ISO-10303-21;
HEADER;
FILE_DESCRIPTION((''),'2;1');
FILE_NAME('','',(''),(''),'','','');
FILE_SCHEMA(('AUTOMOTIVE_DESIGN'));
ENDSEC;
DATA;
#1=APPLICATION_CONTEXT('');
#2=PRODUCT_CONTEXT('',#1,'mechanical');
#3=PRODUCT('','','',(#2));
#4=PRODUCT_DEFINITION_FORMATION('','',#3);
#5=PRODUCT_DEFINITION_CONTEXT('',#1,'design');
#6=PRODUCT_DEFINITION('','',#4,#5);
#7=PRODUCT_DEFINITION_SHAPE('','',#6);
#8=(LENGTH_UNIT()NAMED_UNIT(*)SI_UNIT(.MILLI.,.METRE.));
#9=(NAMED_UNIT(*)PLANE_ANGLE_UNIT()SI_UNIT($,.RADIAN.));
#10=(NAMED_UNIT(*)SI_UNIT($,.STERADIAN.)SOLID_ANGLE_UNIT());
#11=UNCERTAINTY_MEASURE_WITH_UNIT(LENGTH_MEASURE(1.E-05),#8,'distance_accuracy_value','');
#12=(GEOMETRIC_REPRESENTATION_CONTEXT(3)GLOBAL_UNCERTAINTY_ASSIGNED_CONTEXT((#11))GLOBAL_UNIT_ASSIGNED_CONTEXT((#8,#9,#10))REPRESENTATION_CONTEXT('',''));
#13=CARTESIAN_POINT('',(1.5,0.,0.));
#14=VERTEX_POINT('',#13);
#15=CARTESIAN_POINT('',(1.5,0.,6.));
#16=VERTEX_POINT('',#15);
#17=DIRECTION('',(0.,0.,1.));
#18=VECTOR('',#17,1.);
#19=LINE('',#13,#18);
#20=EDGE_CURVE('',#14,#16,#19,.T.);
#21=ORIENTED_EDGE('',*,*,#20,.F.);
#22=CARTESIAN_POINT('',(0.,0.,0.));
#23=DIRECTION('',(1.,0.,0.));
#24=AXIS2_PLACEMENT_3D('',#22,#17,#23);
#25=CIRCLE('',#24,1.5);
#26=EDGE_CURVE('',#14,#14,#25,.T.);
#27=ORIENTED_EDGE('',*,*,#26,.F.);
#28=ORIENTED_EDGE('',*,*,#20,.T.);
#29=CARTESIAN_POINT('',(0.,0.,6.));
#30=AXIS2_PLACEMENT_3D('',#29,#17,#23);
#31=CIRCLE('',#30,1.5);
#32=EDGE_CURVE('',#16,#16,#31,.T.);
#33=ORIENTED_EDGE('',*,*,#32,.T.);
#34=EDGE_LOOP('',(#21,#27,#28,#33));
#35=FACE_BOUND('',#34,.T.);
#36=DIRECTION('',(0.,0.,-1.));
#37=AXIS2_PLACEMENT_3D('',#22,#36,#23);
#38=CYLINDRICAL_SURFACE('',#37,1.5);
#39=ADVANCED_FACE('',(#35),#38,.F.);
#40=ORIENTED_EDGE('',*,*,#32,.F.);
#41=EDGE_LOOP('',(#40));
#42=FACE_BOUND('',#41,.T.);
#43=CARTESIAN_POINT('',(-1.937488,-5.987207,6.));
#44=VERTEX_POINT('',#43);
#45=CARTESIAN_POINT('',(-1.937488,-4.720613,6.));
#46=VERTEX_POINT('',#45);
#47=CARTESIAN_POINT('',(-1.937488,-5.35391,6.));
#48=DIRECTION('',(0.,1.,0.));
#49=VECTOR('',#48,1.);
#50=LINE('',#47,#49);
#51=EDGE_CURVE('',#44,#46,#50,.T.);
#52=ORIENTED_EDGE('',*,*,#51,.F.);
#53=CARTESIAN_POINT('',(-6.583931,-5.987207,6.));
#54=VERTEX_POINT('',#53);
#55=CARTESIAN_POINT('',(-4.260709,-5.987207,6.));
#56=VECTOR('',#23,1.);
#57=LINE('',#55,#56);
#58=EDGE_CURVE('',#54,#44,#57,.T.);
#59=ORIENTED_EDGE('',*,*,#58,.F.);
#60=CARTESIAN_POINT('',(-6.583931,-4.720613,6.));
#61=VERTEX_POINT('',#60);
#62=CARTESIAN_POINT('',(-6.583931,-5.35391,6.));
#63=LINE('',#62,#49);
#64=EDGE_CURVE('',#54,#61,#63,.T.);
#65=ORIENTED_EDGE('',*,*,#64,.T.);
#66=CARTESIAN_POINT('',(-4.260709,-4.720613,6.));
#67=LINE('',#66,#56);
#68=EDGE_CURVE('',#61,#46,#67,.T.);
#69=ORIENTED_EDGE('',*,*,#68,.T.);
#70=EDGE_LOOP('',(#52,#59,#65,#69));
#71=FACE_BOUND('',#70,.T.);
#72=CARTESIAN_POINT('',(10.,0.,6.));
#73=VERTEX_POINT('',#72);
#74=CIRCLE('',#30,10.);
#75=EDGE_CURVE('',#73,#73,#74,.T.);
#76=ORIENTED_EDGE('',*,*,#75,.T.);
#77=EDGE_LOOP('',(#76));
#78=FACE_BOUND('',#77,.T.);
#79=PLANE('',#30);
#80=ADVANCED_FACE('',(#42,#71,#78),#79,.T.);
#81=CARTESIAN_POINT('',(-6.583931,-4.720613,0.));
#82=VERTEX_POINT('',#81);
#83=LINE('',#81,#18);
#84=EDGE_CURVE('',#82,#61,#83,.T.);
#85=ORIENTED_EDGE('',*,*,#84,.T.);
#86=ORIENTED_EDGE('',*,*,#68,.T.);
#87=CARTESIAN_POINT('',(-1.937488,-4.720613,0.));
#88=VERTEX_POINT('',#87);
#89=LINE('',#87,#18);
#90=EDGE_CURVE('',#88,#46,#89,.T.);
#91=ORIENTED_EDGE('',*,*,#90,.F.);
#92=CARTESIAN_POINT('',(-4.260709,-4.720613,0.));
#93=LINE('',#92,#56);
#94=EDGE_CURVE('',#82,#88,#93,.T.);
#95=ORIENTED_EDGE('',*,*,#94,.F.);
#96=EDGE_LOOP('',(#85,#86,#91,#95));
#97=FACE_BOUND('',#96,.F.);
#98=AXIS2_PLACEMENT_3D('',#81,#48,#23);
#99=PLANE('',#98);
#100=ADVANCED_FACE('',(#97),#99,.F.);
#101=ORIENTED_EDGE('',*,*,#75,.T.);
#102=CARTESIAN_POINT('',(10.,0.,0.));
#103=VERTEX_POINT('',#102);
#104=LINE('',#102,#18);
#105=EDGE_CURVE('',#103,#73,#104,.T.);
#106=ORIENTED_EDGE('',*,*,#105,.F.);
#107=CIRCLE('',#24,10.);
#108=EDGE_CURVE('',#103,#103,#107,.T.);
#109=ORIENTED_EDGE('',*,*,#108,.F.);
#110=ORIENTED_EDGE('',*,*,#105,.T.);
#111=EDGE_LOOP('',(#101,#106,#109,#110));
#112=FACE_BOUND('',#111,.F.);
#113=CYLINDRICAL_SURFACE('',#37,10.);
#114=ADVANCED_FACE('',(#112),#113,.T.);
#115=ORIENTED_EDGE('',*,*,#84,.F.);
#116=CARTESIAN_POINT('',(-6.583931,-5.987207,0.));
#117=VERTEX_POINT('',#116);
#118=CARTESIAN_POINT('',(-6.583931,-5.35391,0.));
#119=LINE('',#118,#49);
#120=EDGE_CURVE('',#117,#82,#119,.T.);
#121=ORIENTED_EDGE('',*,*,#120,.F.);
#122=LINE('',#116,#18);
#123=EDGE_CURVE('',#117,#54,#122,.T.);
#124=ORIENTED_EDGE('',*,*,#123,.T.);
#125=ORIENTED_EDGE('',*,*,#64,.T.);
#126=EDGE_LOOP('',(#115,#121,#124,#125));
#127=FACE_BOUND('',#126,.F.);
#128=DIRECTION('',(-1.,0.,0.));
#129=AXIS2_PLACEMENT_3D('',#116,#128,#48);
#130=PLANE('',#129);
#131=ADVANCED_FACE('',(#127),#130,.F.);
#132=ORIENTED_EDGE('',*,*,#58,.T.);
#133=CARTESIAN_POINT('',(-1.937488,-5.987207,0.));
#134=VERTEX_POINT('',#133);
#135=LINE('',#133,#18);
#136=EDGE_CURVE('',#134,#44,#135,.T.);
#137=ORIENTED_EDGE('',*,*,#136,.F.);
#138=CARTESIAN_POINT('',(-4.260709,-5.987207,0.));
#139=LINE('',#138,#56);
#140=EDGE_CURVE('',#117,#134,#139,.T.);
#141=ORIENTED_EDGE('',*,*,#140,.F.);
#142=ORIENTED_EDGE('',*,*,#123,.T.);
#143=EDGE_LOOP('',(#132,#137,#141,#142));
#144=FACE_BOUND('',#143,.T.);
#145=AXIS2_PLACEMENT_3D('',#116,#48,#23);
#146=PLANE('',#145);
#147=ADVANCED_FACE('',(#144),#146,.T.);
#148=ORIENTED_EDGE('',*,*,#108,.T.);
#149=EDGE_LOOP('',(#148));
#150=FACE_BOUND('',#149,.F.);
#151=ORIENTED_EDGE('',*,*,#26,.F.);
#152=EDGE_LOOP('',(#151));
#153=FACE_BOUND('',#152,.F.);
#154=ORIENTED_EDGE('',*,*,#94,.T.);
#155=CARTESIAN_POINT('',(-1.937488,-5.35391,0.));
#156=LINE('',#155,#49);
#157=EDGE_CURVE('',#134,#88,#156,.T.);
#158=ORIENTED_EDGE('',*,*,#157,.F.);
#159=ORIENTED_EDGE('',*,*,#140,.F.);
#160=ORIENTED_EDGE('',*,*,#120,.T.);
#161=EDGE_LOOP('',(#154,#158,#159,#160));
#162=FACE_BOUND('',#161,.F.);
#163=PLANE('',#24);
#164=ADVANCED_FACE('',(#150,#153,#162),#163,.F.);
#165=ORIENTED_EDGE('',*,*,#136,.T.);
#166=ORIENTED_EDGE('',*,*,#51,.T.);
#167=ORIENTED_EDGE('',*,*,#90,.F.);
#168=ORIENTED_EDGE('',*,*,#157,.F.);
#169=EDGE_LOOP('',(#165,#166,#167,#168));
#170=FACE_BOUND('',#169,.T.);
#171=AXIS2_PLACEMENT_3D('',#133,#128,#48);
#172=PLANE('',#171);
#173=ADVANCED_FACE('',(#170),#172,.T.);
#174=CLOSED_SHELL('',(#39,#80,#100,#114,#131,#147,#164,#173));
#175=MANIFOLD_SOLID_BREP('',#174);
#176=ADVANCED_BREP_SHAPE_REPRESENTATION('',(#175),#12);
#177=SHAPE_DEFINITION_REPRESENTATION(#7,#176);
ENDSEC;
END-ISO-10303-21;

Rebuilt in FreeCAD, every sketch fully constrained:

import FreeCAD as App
import Part
import Sketcher

V = App.Vector
Q = App.Units.Quantity


def add_polygon(sketch, points):
    """Adds a closed chain of lines whose ends are joined by coincident constraints."""
    first, n = sketch.GeometryCount, len(points)
    for a, b in zip(points, points[1:] + points[:1]):
        sketch.addGeometry(Part.LineSegment(App.Vector(*a, 0), App.Vector(*b, 0)), False)
    for i in range(n):
        sketch.addConstraint(Sketcher.Constraint("Coincident", first + i, 2, first + (i + 1) % n, 1))

doc = App.newDocument("Part")
body = doc.addObject("PartDesign::Body", "Body")

sketch1 = doc.addObject("Sketcher::SketchObject", "Sketch")
body.addObject(sketch1)
sketch1.AttachmentSupport = (doc.XY_Plane, [""])
sketch1.MapMode = "FlatFace"
sketch1.addGeometry(Part.Circle(V(0, 0, 0), V(0, 0, 1), 10), False)
add_polygon(sketch1, [(-1.937488, -5.987207), (-6.583931, -5.987207), (-6.583931, -4.720613), (-1.937488, -4.720613)])
sketch1.addGeometry(Part.Circle(V(0, 0, 0), V(0, 0, 1), 1.5), False)
sketch1.addConstraint(Sketcher.Constraint("Horizontal", 1))
sketch1.addConstraint(Sketcher.Constraint("Vertical", 2))
sketch1.addConstraint(Sketcher.Constraint("Horizontal", 3))
sketch1.addConstraint(Sketcher.Constraint("Vertical", 4))
sketch1.addConstraint(Sketcher.Constraint("Coincident", 0, 3, -1, 1))
sketch1.addConstraint(Sketcher.Constraint("Coincident", 5, 3, -1, 1))
sketch1.addConstraint(Sketcher.Constraint("Diameter", 0, Q("20 mm")))
sketch1.addConstraint(Sketcher.Constraint("Diameter", 5, Q("3 mm")))
sketch1.addConstraint(Sketcher.Constraint("DistanceX", 1, 2, 1, 1, Q("4.646443 mm")))
sketch1.addConstraint(Sketcher.Constraint("DistanceY", 2, 1, 2, 2, Q("1.266593 mm")))
sketch1.addConstraint(Sketcher.Constraint("DistanceX", 1, 2, -1, 1, Q("6.583931 mm")))
sketch1.addConstraint(Sketcher.Constraint("DistanceY", 1, 2, -1, 1, Q("5.987207 mm")))
pad1 = doc.addObject("PartDesign::Pad", "Pad")
body.addObject(pad1)
pad1.Profile = sketch1
pad1.Length = 6

doc.recompute()
